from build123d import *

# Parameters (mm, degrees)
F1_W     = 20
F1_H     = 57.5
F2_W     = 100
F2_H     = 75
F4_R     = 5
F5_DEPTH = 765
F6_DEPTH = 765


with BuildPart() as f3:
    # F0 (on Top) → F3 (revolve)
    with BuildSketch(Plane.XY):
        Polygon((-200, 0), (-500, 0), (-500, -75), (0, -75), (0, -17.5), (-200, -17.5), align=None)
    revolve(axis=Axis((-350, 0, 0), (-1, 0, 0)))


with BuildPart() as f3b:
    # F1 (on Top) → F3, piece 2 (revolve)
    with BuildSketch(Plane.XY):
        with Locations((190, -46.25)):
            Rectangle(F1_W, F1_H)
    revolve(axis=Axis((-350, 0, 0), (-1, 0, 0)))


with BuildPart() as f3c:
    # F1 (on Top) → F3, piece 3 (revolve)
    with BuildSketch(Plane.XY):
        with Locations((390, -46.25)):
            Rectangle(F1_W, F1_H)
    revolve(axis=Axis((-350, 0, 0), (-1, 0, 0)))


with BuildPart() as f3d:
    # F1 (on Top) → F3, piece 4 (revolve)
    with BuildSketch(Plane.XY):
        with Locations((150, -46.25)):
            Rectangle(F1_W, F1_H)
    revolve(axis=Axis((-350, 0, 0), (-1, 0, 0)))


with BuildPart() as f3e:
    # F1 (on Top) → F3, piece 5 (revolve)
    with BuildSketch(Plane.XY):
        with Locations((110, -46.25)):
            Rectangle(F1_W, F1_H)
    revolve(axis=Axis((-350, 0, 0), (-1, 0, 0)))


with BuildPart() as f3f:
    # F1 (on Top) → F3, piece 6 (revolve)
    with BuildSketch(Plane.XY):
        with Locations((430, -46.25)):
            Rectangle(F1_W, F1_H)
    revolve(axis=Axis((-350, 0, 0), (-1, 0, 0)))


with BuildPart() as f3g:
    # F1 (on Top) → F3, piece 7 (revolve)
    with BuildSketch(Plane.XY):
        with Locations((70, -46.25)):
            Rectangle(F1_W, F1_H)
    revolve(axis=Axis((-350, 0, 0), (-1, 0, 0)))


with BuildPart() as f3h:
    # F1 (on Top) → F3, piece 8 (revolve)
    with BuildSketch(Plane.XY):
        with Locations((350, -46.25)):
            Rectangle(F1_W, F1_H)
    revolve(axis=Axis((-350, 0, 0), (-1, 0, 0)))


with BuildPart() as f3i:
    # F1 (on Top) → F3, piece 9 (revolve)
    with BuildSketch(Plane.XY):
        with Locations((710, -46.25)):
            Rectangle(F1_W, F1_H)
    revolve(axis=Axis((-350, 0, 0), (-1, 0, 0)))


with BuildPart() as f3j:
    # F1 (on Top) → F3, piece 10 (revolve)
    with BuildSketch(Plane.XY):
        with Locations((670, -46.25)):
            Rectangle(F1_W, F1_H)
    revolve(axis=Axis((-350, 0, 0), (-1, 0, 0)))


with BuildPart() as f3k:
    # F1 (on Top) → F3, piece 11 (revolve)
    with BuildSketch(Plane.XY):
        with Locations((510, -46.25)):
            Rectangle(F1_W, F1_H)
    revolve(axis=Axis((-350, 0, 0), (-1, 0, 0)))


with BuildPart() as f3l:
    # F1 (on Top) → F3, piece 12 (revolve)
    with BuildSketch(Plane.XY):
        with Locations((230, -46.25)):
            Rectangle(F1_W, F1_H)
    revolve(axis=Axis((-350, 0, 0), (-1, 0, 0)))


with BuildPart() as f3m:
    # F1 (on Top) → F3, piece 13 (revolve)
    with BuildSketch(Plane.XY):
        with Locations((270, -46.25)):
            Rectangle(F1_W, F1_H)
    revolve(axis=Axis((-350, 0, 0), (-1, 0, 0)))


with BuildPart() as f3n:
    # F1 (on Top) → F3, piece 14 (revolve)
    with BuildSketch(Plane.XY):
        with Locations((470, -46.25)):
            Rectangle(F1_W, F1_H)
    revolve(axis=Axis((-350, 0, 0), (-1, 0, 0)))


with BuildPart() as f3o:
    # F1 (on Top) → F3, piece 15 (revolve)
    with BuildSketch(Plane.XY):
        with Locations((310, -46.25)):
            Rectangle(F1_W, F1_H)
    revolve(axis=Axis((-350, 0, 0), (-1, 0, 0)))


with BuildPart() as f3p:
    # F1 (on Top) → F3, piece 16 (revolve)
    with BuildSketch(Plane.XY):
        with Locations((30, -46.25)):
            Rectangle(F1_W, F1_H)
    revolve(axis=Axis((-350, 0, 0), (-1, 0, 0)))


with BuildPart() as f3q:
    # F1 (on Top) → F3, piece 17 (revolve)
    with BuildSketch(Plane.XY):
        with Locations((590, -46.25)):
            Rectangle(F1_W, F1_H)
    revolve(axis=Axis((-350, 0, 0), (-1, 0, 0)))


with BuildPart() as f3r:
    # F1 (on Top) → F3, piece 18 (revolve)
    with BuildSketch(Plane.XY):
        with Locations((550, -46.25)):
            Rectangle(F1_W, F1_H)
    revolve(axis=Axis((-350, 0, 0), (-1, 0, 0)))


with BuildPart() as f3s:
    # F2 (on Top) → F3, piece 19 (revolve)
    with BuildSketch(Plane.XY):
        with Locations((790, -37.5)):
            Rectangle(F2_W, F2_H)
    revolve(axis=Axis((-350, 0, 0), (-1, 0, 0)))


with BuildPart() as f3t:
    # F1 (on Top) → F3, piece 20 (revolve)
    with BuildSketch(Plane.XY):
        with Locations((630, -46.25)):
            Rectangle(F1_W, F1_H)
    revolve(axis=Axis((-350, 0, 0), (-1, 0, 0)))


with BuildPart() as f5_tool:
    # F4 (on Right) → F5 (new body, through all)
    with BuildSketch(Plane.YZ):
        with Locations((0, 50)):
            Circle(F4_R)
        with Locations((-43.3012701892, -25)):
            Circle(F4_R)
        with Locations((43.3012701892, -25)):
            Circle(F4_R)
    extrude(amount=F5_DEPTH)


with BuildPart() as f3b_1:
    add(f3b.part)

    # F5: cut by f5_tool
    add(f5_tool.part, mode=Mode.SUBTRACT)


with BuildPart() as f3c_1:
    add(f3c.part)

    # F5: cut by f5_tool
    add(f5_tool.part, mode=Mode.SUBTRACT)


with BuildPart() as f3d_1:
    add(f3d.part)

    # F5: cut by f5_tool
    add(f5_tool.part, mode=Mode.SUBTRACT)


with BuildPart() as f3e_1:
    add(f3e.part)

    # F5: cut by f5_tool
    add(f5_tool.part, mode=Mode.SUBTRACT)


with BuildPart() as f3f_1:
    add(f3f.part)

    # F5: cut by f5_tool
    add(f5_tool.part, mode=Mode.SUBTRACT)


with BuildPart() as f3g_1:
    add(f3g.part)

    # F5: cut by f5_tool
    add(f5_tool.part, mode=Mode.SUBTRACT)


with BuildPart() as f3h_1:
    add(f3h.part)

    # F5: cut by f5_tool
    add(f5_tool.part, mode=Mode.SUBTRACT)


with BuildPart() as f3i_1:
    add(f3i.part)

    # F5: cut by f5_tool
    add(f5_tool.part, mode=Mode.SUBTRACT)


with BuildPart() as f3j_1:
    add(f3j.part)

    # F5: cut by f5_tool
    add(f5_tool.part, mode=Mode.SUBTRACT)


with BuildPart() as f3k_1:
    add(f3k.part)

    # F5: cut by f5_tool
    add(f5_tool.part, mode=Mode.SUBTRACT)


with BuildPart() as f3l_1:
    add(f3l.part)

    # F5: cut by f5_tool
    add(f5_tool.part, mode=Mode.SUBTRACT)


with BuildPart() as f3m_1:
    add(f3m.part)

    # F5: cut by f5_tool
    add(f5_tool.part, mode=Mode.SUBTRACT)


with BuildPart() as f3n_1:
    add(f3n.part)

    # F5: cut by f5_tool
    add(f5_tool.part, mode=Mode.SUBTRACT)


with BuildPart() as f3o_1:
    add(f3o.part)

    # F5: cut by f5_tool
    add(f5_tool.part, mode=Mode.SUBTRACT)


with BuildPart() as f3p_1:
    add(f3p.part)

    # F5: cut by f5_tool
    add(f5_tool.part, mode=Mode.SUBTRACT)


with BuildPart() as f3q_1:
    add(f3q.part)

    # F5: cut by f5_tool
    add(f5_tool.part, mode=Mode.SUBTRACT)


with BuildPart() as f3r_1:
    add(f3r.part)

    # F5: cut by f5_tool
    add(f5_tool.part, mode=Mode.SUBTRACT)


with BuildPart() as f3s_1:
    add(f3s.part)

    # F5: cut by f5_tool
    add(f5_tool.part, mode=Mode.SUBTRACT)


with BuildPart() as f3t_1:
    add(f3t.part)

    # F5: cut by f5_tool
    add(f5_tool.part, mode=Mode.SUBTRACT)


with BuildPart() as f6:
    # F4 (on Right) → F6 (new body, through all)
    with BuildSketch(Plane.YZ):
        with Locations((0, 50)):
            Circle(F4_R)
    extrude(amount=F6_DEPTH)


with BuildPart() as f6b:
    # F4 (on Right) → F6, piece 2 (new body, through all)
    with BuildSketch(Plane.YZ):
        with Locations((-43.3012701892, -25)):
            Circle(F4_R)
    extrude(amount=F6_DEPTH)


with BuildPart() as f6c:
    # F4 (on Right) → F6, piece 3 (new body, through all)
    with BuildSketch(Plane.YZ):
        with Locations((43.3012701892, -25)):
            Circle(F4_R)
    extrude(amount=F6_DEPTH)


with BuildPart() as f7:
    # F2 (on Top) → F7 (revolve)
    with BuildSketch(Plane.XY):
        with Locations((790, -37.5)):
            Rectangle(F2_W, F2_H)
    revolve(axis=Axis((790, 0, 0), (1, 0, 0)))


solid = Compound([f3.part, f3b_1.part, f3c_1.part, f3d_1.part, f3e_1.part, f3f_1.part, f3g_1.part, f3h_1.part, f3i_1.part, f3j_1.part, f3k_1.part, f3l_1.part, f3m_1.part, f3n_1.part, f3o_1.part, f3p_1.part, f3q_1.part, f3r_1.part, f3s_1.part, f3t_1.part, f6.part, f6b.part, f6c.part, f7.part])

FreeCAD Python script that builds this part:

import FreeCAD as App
import Part
import Sketcher
from FreeCAD import Vector

doc = App.newDocument("Part")
params = doc.addObject("Spreadsheet::Sheet", "Params")
for row, (alias, value) in enumerate([
    ("sketch1_width", "300 mm"),
    ("sketch1_width2", "500 mm"),
    ("sketch1_height", "75 mm"),
    ("sketch1_height2", "57.5 mm"),
    ("revolution_angle", "360 deg"),
    ("sketch2_width", "20 mm"),
    ("sketch2_height", "57.5 mm"),
    ("revolution2_angle", "360 deg"),
    ("sketch3_width", "20 mm"),
    ("sketch3_height", "57.5 mm"),
    ("revolution3_angle", "360 deg"),
    ("sketch4_width", "20 mm"),
    ("sketch4_height", "57.5 mm"),
    ("revolution4_angle", "360 deg"),
    ("sketch5_width", "20 mm"),
    ("sketch5_height", "57.5 mm"),
    ("revolution5_angle", "360 deg"),
    ("sketch6_width", "20 mm"),
    ("sketch6_height", "57.5 mm"),
    ("revolution6_angle", "360 deg"),
    ("sketch7_width", "20 mm"),
    ("sketch7_height", "57.5 mm"),
    ("revolution7_angle", "360 deg"),
    ("sketch8_width", "20 mm"),
    ("sketch8_height", "57.5 mm"),
    ("revolution8_angle", "360 deg"),
    ("sketch9_width", "20 mm"),
    ("sketch9_height", "57.5 mm"),
    ("revolution9_angle", "360 deg"),
    ("sketch10_width", "20 mm"),
    ("sketch10_height", "57.5 mm"),
    ("revolution10_angle", "360 deg"),
    ("sketch11_width", "20 mm"),
    ("sketch11_height", "57.5 mm"),
    ("revolution11_angle", "360 deg"),
    ("sketch12_width", "20 mm"),
    ("sketch12_height", "57.5 mm"),
    ("revolution12_angle", "360 deg"),
    ("sketch13_width", "20 mm"),
    ("sketch13_height", "57.5 mm"),
    ("revolution13_angle", "360 deg"),
    ("sketch14_width", "20 mm"),
    ("sketch14_height", "57.5 mm"),
    ("revolution14_angle", "360 deg"),
    ("sketch15_width", "20 mm"),
    ("sketch15_height", "57.5 mm"),
    ("revolution15_angle", "360 deg"),
    ("sketch16_width", "20 mm"),
    ("sketch16_height", "57.5 mm"),
    ("revolution16_angle", "360 deg"),
    ("sketch17_width", "20 mm"),
    ("sketch17_height", "57.5 mm"),
    ("revolution17_angle", "360 deg"),
    ("sketch18_width", "20 mm"),
    ("sketch18_height", "57.5 mm"),
    ("revolution18_angle", "360 deg"),
    ("sketch19_width", "100 mm"),
    ("sketch19_height", "75 mm"),
    ("revolution19_angle", "360 deg"),
    ("sketch20_width", "20 mm"),
    ("sketch20_height", "57.5 mm"),
    ("revolution20_angle", "360 deg"),
    ("sketch21_diameter", "10 mm"),
    ("pad1_length", "765 mm"),
    ("sketch22_diameter", "10 mm"),
    ("pad2_length", "765 mm"),
    ("sketch23_diameter", "10 mm"),
    ("pad3_length", "765 mm"),
    ("sketch24_diameter", "10 mm"),
    ("pad4_length", "765 mm"),
    ("sketch25_width", "100 mm"),
    ("sketch25_height", "75 mm"),
    ("revolution21_angle", "360 deg"),
], start=1):
    params.set(f"A{row}", alias)
    params.set(f"B{row}", "=" + value)
    params.setAlias(f"B{row}", alias)

body = doc.addObject("PartDesign::Body", "Body")

sketch1 = body.newObject("Sketcher::SketchObject", "Sketch")
sketch1.AttachmentSupport = (doc.getObject("XY_Plane"), [""])
sketch1.MapMode = "FlatFace"
sketch1.addGeometry([
    Part.LineSegment(Vector(-200, 0, 0), Vector(-500, 0, 0)),
    Part.LineSegment(Vector(-500, 0, 0), Vector(-500, -75, 0)),
    Part.LineSegment(Vector(-500, -75, 0), Vector(0, -75, 0)),
    Part.LineSegment(Vector(0, -75, 0), Vector(0, -17.5, 0)),
    Part.LineSegment(Vector(0, -17.5, 0), Vector(-200, -17.5, 0)),
    Part.LineSegment(Vector(-200, -17.5, 0), Vector(-200, 0, 0)),
], False)
sketch1.addConstraint([
    Sketcher.Constraint("Coincident", 0, 2, 1, 1),
    Sketcher.Constraint("Coincident", 1, 2, 2, 1),
    Sketcher.Constraint("Coincident", 2, 2, 3, 1),
    Sketcher.Constraint("Coincident", 3, 2, 4, 1),
    Sketcher.Constraint("Coincident", 4, 2, 5, 1),
    Sketcher.Constraint("Coincident", 5, 2, 0, 1),
    Sketcher.Constraint("Horizontal", 0),
    Sketcher.Constraint("Vertical", 1),
    Sketcher.Constraint("Horizontal", 2),
    Sketcher.Constraint("Vertical", 3),
    Sketcher.Constraint("Horizontal", 4),
    Sketcher.Constraint("Vertical", 5),
    Sketcher.Constraint("PointOnObject", 0, 2, -1),
    Sketcher.Constraint("PointOnObject", 2, 2, -2),
    Sketcher.Constraint("DistanceX", 0, 2, 0, 1, 300.0),
    Sketcher.Constraint("DistanceX", 2, 1, 2, 2, 500.0),
    Sketcher.Constraint("DistanceY", 1, 2, 1, 1, 75.0),
    Sketcher.Constraint("DistanceY", 3, 1, 3, 2, 57.5),
])
sketch1.setExpression("Constraints[14]", "Params.sketch1_width")
sketch1.setExpression("Constraints[15]", "Params.sketch1_width2")
sketch1.setExpression("Constraints[16]", "Params.sketch1_height")
sketch1.setExpression("Constraints[17]", "Params.sketch1_height2")
revolution = body.newObject("PartDesign::Revolution", "Revolution")
revolution.Profile = sketch1
revolution.ReferenceAxis = (sketch1, ["H_Axis"])
revolution.setExpression("Angle", "Params.revolution_angle")
body2 = doc.addObject("PartDesign::Body", "Body001")

sketch2 = body2.newObject("Sketcher::SketchObject", "Sketch001")
sketch2.AttachmentSupport = (doc.getObject("XY_Plane001"), [""])
sketch2.MapMode = "FlatFace"
sketch2.addGeometry([
    Part.LineSegment(Vector(180, -17.5, 0), Vector(180, -75, 0)),
    Part.LineSegment(Vector(180, -75, 0), Vector(200, -75, 0)),
    Part.LineSegment(Vector(200, -75, 0), Vector(200, -17.5, 0)),
    Part.LineSegment(Vector(200, -17.5, 0), Vector(180, -17.5, 0)),
], False)
sketch2.addConstraint([
    Sketcher.Constraint("Coincident", 0, 2, 1, 1),
    Sketcher.Constraint("Coincident", 1, 2, 2, 1),
    Sketcher.Constraint("Coincident", 2, 2, 3, 1),
    Sketcher.Constraint("Coincident", 3, 2, 0, 1),
    Sketcher.Constraint("Vertical", 0),
    Sketcher.Constraint("Horizontal", 1),
    Sketcher.Constraint("Vertical", 2),
    Sketcher.Constraint("Horizontal", 3),
    Sketcher.Constraint("DistanceX", 1, 1, 1, 2, 20.0),
    Sketcher.Constraint("DistanceY", 0, 2, 0, 1, 57.5),
    Sketcher.Constraint("DistanceX", -1, 1, 0, 2, 180.0),
    Sketcher.Constraint("DistanceY", 0, 2, -1, 1, 75.0),
])
sketch2.setExpression("Constraints[8]", "Params.sketch2_width")
sketch2.setExpression("Constraints[9]", "Params.sketch2_height")
revolution2 = body2.newObject("PartDesign::Revolution", "Revolution001")
revolution2.Profile = sketch2
revolution2.ReferenceAxis = (sketch2, ["H_Axis"])
revolution2.setExpression("Angle", "Params.revolution2_angle")
body3 = doc.addObject("PartDesign::Body", "Body002")

sketch3 = body3.newObject("Sketcher::SketchObject", "Sketch002")
sketch3.AttachmentSupport = (doc.getObject("XY_Plane002"), [""])
sketch3.MapMode = "FlatFace"
sketch3.addGeometry([
    Part.LineSegment(Vector(380, -17.5, 0), Vector(380, -75, 0)),
    Part.LineSegment(Vector(380, -75, 0), Vector(400, -75, 0)),
    Part.LineSegment(Vector(400, -75, 0), Vector(400, -17.5, 0)),
    Part.LineSegment(Vector(400, -17.5, 0), Vector(380, -17.5, 0)),
], False)
sketch3.addConstraint([
    Sketcher.Constraint("Coincident", 0, 2, 1, 1),
    Sketcher.Constraint("Coincident", 1, 2, 2, 1),
    Sketcher.Constraint("Coincident", 2, 2, 3, 1),
    Sketcher.Constraint("Coincident", 3, 2, 0, 1),
    Sketcher.Constraint("Vertical", 0),
    Sketcher.Constraint("Horizontal", 1),
    Sketcher.Constraint("Vertical", 2),
    Sketcher.Constraint("Horizontal", 3),
    Sketcher.Constraint("DistanceX", 1, 1, 1, 2, 20.0),
    Sketcher.Constraint("DistanceY", 0, 2, 0, 1, 57.5),
    Sketcher.Constraint("DistanceX", -1, 1, 0, 2, 380.0),
    Sketcher.Constraint("DistanceY", 0, 2, -1, 1, 75.0),
])
sketch3.setExpression("Constraints[8]", "Params.sketch3_width")
sketch3.setExpression("Constraints[9]", "Params.sketch3_height")
revolution3 = body3.newObject("PartDesign::Revolution", "Revolution002")
revolution3.Profile = sketch3
revolution3.ReferenceAxis = (sketch3, ["H_Axis"])
revolution3.setExpression("Angle", "Params.revolution3_angle")
body4 = doc.addObject("PartDesign::Body", "Body003")

sketch4 = body4.newObject("Sketcher::SketchObject", "Sketch003")
sketch4.AttachmentSupport = (doc.getObject("XY_Plane003"), [""])
sketch4.MapMode = "FlatFace"
sketch4.addGeometry([
    Part.LineSegment(Vector(140, -17.5, 0), Vector(140, -75, 0)),
    Part.LineSegment(Vector(140, -75, 0), Vector(160, -75, 0)),
    Part.LineSegment(Vector(160, -75, 0), Vector(160, -17.5, 0)),
    Part.LineSegment(Vector(160, -17.5, 0), Vector(140, -17.5, 0)),
], False)
sketch4.addConstraint([
    Sketcher.Constraint("Coincident", 0, 2, 1, 1),
    Sketcher.Constraint("Coincident", 1, 2, 2, 1),
    Sketcher.Constraint("Coincident", 2, 2, 3, 1),
    Sketcher.Constraint("Coincident", 3, 2, 0, 1),
    Sketcher.Constraint("Vertical", 0),
    Sketcher.Constraint("Horizontal", 1),
    Sketcher.Constraint("Vertical", 2),
    Sketcher.Constraint("Horizontal", 3),
    Sketcher.Constraint("DistanceX", 1, 1, 1, 2, 20.0),
    Sketcher.Constraint("DistanceY", 0, 2, 0, 1, 57.5),
    Sketcher.Constraint("DistanceX", -1, 1, 0, 2, 140.0),
    Sketcher.Constraint("DistanceY", 0, 2, -1, 1, 75.0),
])
sketch4.setExpression("Constraints[8]", "Params.sketch4_width")
sketch4.setExpression("Constraints[9]", "Params.sketch4_height")
revolution4 = body4.newObject("PartDesign::Revolution", "Revolution003")
revolution4.Profile = sketch4
revolution4.ReferenceAxis = (sketch4, ["H_Axis"])
revolution4.setExpression("Angle", "Params.revolution4_angle")
body5 = doc.addObject("PartDesign::Body", "Body004")

sketch5 = body5.newObject("Sketcher::SketchObject", "Sketch004")
sketch5.AttachmentSupport = (doc.getObject("XY_Plane004"), [""])
sketch5.MapMode = "FlatFace"
sketch5.addGeometry([
    Part.LineSegment(Vector(100, -17.5, 0), Vector(100, -75, 0)),
    Part.LineSegment(Vector(100, -75, 0), Vector(120, -75, 0)),
    Part.LineSegment(Vector(120, -75, 0), Vector(120, -17.5, 0)),
    Part.LineSegment(Vector(120, -17.5, 0), Vector(100, -17.5, 0)),
], False)
sketch5.addConstraint([
    Sketcher.Constraint("Coincident", 0, 2, 1, 1),
    Sketcher.Constraint("Coincident", 1, 2, 2, 1),
    Sketcher.Constraint("Coincident", 2, 2, 3, 1),
    Sketcher.Constraint("Coincident", 3, 2, 0, 1),
    Sketcher.Constraint("Vertical", 0),
    Sketcher.Constraint("Horizontal", 1),
    Sketcher.Constraint("Vertical", 2),
    Sketcher.Constraint("Horizontal", 3),
    Sketcher.Constraint("DistanceX", 1, 1, 1, 2, 20.0),
    Sketcher.Constraint("DistanceY", 0, 2, 0, 1, 57.5),
    Sketcher.Constraint("DistanceX", -1, 1, 0, 2, 100.0),
    Sketcher.Constraint("DistanceY", 0, 2, -1, 1, 75.0),
])
sketch5.setExpression("Constraints[8]", "Params.sketch5_width")
sketch5.setExpression("Constraints[9]", "Params.sketch5_height")
revolution5 = body5.newObject("PartDesign::Revolution", "Revolution004")
revolution5.Profile = sketch5
revolution5.ReferenceAxis = (sketch5, ["H_Axis"])
revolution5.setExpression("Angle", "Params.revolution5_angle")
body6 = doc.addObject("PartDesign::Body", "Body005")

sketch6 = body6.newObject("Sketcher::SketchObject", "Sketch005")
sketch6.AttachmentSupport = (doc.getObject("XY_Plane005"), [""])
sketch6.MapMode = "FlatFace"
sketch6.addGeometry([
    Part.LineSegment(Vector(420, -17.5, 0), Vector(420, -75, 0)),
    Part.LineSegment(Vector(420, -75, 0), Vector(440, -75, 0)),
    Part.LineSegment(Vector(440, -75, 0), Vector(440, -17.5, 0)),
    Part.LineSegment(Vector(440, -17.5, 0), Vector(420, -17.5, 0)),
], False)
sketch6.addConstraint([
    Sketcher.Constraint("Coincident", 0, 2, 1, 1),
    Sketcher.Constraint("Coincident", 1, 2, 2, 1),
    Sketcher.Constraint("Coincident", 2, 2, 3, 1),
    Sketcher.Constraint("Coincident", 3, 2, 0, 1),
    Sketcher.Constraint("Vertical", 0),
    Sketcher.Constraint("Horizontal", 1),
    Sketcher.Constraint("Vertical", 2),
    Sketcher.Constraint("Horizontal", 3),
    Sketcher.Constraint("DistanceX", 1, 1, 1, 2, 20.0),
    Sketcher.Constraint("DistanceY", 0, 2, 0, 1, 57.5),
    Sketcher.Constraint("DistanceX", -1, 1, 0, 2, 420.0),
    Sketcher.Constraint("DistanceY", 0, 2, -1, 1, 75.0),
])
sketch6.setExpression("Constraints[8]", "Params.sketch6_width")
sketch6.setExpression("Constraints[9]", "Params.sketch6_height")
revolution6 = body6.newObject("PartDesign::Revolution", "Revolution005")
revolution6.Profile = sketch6
revolution6.ReferenceAxis = (sketch6, ["H_Axis"])
revolution6.setExpression("Angle", "Params.revolution6_angle")
body7 = doc.addObject("PartDesign::Body", "Body006")

sketch7 = body7.newObject("Sketcher::SketchObject", "Sketch006")
sketch7.AttachmentSupport = (doc.getObject("XY_Plane006"), [""])
sketch7.MapMode = "FlatFace"
sketch7.addGeometry([
    Part.LineSegment(Vector(60, -17.5, 0), Vector(60, -75, 0)),
    Part.LineSegment(Vector(60, -75, 0), Vector(80, -75, 0)),
    Part.LineSegment(Vector(80, -75, 0), Vector(80, -17.5, 0)),
    Part.LineSegment(Vector(80, -17.5, 0), Vector(60, -17.5, 0)),
], False)
sketch7.addConstraint([
    Sketcher.Constraint("Coincident", 0, 2, 1, 1),
    Sketcher.Constraint("Coincident", 1, 2, 2, 1),
    Sketcher.Constraint("Coincident", 2, 2, 3, 1),
    Sketcher.Constraint("Coincident", 3, 2, 0, 1),
    Sketcher.Constraint("Vertical", 0),
    Sketcher.Constraint("Horizontal", 1),
    Sketcher.Constraint("Vertical", 2),
    Sketcher.Constraint("Horizontal", 3),
    Sketcher.Constraint("DistanceX", 1, 1, 1, 2, 20.0),
    Sketcher.Constraint("DistanceY", 0, 2, 0, 1, 57.5),
    Sketcher.Constraint("DistanceX", -1, 1, 0, 2, 60.0),
    Sketcher.Constraint("DistanceY", 0, 2, -1, 1, 75.0),
])
sketch7.setExpression("Constraints[8]", "Params.sketch7_width")
sketch7.setExpression("Constraints[9]", "Params.sketch7_height")
revolution7 = body7.newObject("PartDesign::Revolution", "Revolution006")
revolution7.Profile = sketch7
revolution7.ReferenceAxis = (sketch7, ["H_Axis"])
revolution7.setExpression("Angle", "Params.revolution7_angle")
body8 = doc.addObject("PartDesign::Body", "Body007")

sketch8 = body8.newObject("Sketcher::SketchObject", "Sketch007")
sketch8.AttachmentSupport = (doc.getObject("XY_Plane007"), [""])
sketch8.MapMode = "FlatFace"
sketch8.addGeometry([
    Part.LineSegment(Vector(340, -17.5, 0), Vector(340, -75, 0)),
    Part.LineSegment(Vector(340, -75, 0), Vector(360, -75, 0)),
    Part.LineSegment(Vector(360, -75, 0), Vector(360, -17.5, 0)),
    Part.LineSegment(Vector(360, -17.5, 0), Vector(340, -17.5, 0)),
], False)
sketch8.addConstraint([
    Sketcher.Constraint("Coincident", 0, 2, 1, 1),
    Sketcher.Constraint("Coincident", 1, 2, 2, 1),
    Sketcher.Constraint("Coincident", 2, 2, 3, 1),
    Sketcher.Constraint("Coincident", 3, 2, 0, 1),
    Sketcher.Constraint("Vertical", 0),
    Sketcher.Constraint("Horizontal", 1),
    Sketcher.Constraint("Vertical", 2),
    Sketcher.Constraint("Horizontal", 3),
    Sketcher.Constraint("DistanceX", 1, 1, 1, 2, 20.0),
    Sketcher.Constraint("DistanceY", 0, 2, 0, 1, 57.5),
    Sketcher.Constraint("DistanceX", -1, 1, 0, 2, 340.0),
    Sketcher.Constraint("DistanceY", 0, 2, -1, 1, 75.0),
])
sketch8.setExpression("Constraints[8]", "Params.sketch8_width")
sketch8.setExpression("Constraints[9]", "Params.sketch8_height")
revolution8 = body8.newObject("PartDesign::Revolution", "Revolution007")
revolution8.Profile = sketch8
revolution8.ReferenceAxis = (sketch8, ["H_Axis"])
revolution8.setExpression("Angle", "Params.revolution8_angle")
body9 = doc.addObject("PartDesign::Body", "Body008")

sketch9 = body9.newObject("Sketcher::SketchObject", "Sketch008")
sketch9.AttachmentSupport = (doc.getObject("XY_Plane008"), [""])
sketch9.MapMode = "FlatFace"
sketch9.addGeometry([
    Part.LineSegment(Vector(700, -17.5, 0), Vector(700, -75, 0)),
    Part.LineSegment(Vector(700, -75, 0), Vector(720, -75, 0)),
    Part.LineSegment(Vector(720, -75, 0), Vector(720, -17.5, 0)),
    Part.LineSegment(Vector(720, -17.5, 0), Vector(700, -17.5, 0)),
], False)
sketch9.addConstraint([
    Sketcher.Constraint("Coincident", 0, 2, 1, 1),
    Sketcher.Constraint("Coincident", 1, 2, 2, 1),
    Sketcher.Constraint("Coincident", 2, 2, 3, 1),
    Sketcher.Constraint("Coincident", 3, 2, 0, 1),
    Sketcher.Constraint("Vertical", 0),
    Sketcher.Constraint("Horizontal", 1),
    Sketcher.Constraint("Vertical", 2),
    Sketcher.Constraint("Horizontal", 3),
    Sketcher.Constraint("DistanceX", 1, 1, 1, 2, 20.0),
    Sketcher.Constraint("DistanceY", 0, 2, 0, 1, 57.5),
    Sketcher.Constraint("DistanceX", -1, 1, 0, 2, 700.0),
    Sketcher.Constraint("DistanceY", 0, 2, -1, 1, 75.0),
])
sketch9.setExpression("Constraints[8]", "Params.sketch9_width")
sketch9.setExpression("Constraints[9]", "Params.sketch9_height")
revolution9 = body9.newObject("PartDesign::Revolution", "Revolution008")
revolution9.Profile = sketch9
revolution9.ReferenceAxis = (sketch9, ["H_Axis"])
revolution9.setExpression("Angle", "Params.revolution9_angle")
body10 = doc.addObject("PartDesign::Body", "Body009")

sketch10 = body10.newObject("Sketcher::SketchObject", "Sketch009")
sketch10.AttachmentSupport = (doc.getObject("XY_Plane009"), [""])
sketch10.MapMode = "FlatFace"
sketch10.addGeometry([
    Part.LineSegment(Vector(660, -17.5, 0), Vector(660, -75, 0)),
    Part.LineSegment(Vector(660, -75, 0), Vector(680, -75, 0)),
    Part.LineSegment(Vector(680, -75, 0), Vector(680, -17.5, 0)),
    Part.LineSegment(Vector(680, -17.5, 0), Vector(660, -17.5, 0)),
], False)
sketch10.addConstraint([
    Sketcher.Constraint("Coincident", 0, 2, 1, 1),
    Sketcher.Constraint("Coincident", 1, 2, 2, 1),
    Sketcher.Constraint("Coincident", 2, 2, 3, 1),
    Sketcher.Constraint("Coincident", 3, 2, 0, 1),
    Sketcher.Constraint("Vertical", 0),
    Sketcher.Constraint("Horizontal", 1),
    Sketcher.Constraint("Vertical", 2),
    Sketcher.Constraint("Horizontal", 3),
    Sketcher.Constraint("DistanceX", 1, 1, 1, 2, 20.0),
    Sketcher.Constraint("DistanceY", 0, 2, 0, 1, 57.5),
    Sketcher.Constraint("DistanceX", -1, 1, 0, 2, 660.0),
    Sketcher.Constraint("DistanceY", 0, 2, -1, 1, 75.0),
])
sketch10.setExpression("Constraints[8]", "Params.sketch10_width")
sketch10.setExpression("Constraints[9]", "Params.sketch10_height")
revolution10 = body10.newObject("PartDesign::Revolution", "Revolution009")
revolution10.Profile = sketch10
revolution10.ReferenceAxis = (sketch10, ["H_Axis"])
revolution10.setExpression("Angle", "Params.revolution10_angle")
body11 = doc.addObject("PartDesign::Body", "Body010")

sketch11 = body11.newObject("Sketcher::SketchObject", "Sketch010")
sketch11.AttachmentSupport = (doc.getObject("XY_Plane010"), [""])
sketch11.MapMode = "FlatFace"
sketch11.addGeometry([
    Part.LineSegment(Vector(500, -17.5, 0), Vector(500, -75, 0)),
    Part.LineSegment(Vector(500, -75, 0), Vector(520, -75, 0)),
    Part.LineSegment(Vector(520, -75, 0), Vector(520, -17.5, 0)),
    Part.LineSegment(Vector(520, -17.5, 0), Vector(500, -17.5, 0)),
], False)
sketch11.addConstraint([
    Sketcher.Constraint("Coincident", 0, 2, 1, 1),
    Sketcher.Constraint("Coincident", 1, 2, 2, 1),
    Sketcher.Constraint("Coincident", 2, 2, 3, 1),
    Sketcher.Constraint("Coincident", 3, 2, 0, 1),
    Sketcher.Constraint("Vertical", 0),
    Sketcher.Constraint("Horizontal", 1),
    Sketcher.Constraint("Vertical", 2),
    Sketcher.Constraint("Horizontal", 3),
    Sketcher.Constraint("DistanceX", 1, 1, 1, 2, 20.0),
    Sketcher.Constraint("DistanceY", 0, 2, 0, 1, 57.5),
    Sketcher.Constraint("DistanceX", -1, 1, 0, 2, 500.0),
    Sketcher.Constraint("DistanceY", 0, 2, -1, 1, 75.0),
])
sketch11.setExpression("Constraints[8]", "Params.sketch11_width")
sketch11.setExpression("Constraints[9]", "Params.sketch11_height")
revolution11 = body11.newObject("PartDesign::Revolution", "Revolution010")
revolution11.Profile = sketch11
revolution11.ReferenceAxis = (sketch11, ["H_Axis"])
revolution11.setExpression("Angle", "Params.revolution11_angle")
body12 = doc.addObject("PartDesign::Body", "Body011")

sketch12 = body12.newObject("Sketcher::SketchObject", "Sketch011")
sketch12.AttachmentSupport = (doc.getObject("XY_Plane011"), [""])
sketch12.MapMode = "FlatFace"
sketch12.addGeometry([
    Part.LineSegment(Vector(220, -17.5, 0), Vector(220, -75, 0)),
    Part.LineSegment(Vector(220, -75, 0), Vector(240, -75, 0)),
    Part.LineSegment(Vector(240, -75, 0), Vector(240, -17.5, 0)),
    Part.LineSegment(Vector(240, -17.5, 0), Vector(220, -17.5, 0)),
], False)
sketch12.addConstraint([
    Sketcher.Constraint("Coincident", 0, 2, 1, 1),
    Sketcher.Constraint("Coincident", 1, 2, 2, 1),
    Sketcher.Constraint("Coincident", 2, 2, 3, 1),
    Sketcher.Constraint("Coincident", 3, 2, 0, 1),
    Sketcher.Constraint("Vertical", 0),
    Sketcher.Constraint("Horizontal", 1),
    Sketcher.Constraint("Vertical", 2),
    Sketcher.Constraint("Horizontal", 3),
    Sketcher.Constraint("DistanceX", 1, 1, 1, 2, 20.0),
    Sketcher.Constraint("DistanceY", 0, 2, 0, 1, 57.5),
    Sketcher.Constraint("DistanceX", -1, 1, 0, 2, 220.0),
    Sketcher.Constraint("DistanceY", 0, 2, -1, 1, 75.0),
])
sketch12.setExpression("Constraints[8]", "Params.sketch12_width")
sketch12.setExpression("Constraints[9]", "Params.sketch12_height")
revolution12 = body12.newObject("PartDesign::Revolution", "Revolution011")
revolution12.Profile = sketch12
revolution12.ReferenceAxis = (sketch12, ["H_Axis"])
revolution12.setExpression("Angle", "Params.revolution12_angle")
body13 = doc.addObject("PartDesign::Body", "Body012")

sketch13 = body13.newObject("Sketcher::SketchObject", "Sketch012")
sketch13.AttachmentSupport = (doc.getObject("XY_Plane012"), [""])
sketch13.MapMode = "FlatFace"
sketch13.addGeometry([
    Part.LineSegment(Vector(260, -17.5, 0), Vector(260, -75, 0)),
    Part.LineSegment(Vector(260, -75, 0), Vector(280, -75, 0)),
    Part.LineSegment(Vector(280, -75, 0), Vector(280, -17.5, 0)),
    Part.LineSegment(Vector(280, -17.5, 0), Vector(260, -17.5, 0)),
], False)
sketch13.addConstraint([
    Sketcher.Constraint("Coincident", 0, 2, 1, 1),
    Sketcher.Constraint("Coincident", 1, 2, 2, 1),
    Sketcher.Constraint("Coincident", 2, 2, 3, 1),
    Sketcher.Constraint("Coincident", 3, 2, 0, 1),
    Sketcher.Constraint("Vertical", 0),
    Sketcher.Constraint("Horizontal", 1),
    Sketcher.Constraint("Vertical", 2),
    Sketcher.Constraint("Horizontal", 3),
    Sketcher.Constraint("DistanceX", 1, 1, 1, 2, 20.0),
    Sketcher.Constraint("DistanceY", 0, 2, 0, 1, 57.5),
    Sketcher.Constraint("DistanceX", -1, 1, 0, 2, 260.0),
    Sketcher.Constraint("DistanceY", 0, 2, -1, 1, 75.0),
])
sketch13.setExpression("Constraints[8]", "Params.sketch13_width")
sketch13.setExpression("Constraints[9]", "Params.sketch13_height")
revolution13 = body13.newObject("PartDesign::Revolution", "Revolution012")
revolution13.Profile = sketch13
revolution13.ReferenceAxis = (sketch13, ["H_Axis"])
revolution13.setExpression("Angle", "Params.revolution13_angle")
body14 = doc.addObject("PartDesign::Body", "Body013")

sketch14 = body14.newObject("Sketcher::SketchObject", "Sketch013")
sketch14.AttachmentSupport = (doc.getObject("XY_Plane013"), [""])
sketch14.MapMode = "FlatFace"
sketch14.addGeometry([
    Part.LineSegment(Vector(460, -17.5, 0), Vector(460, -75, 0)),
    Part.LineSegment(Vector(460, -75, 0), Vector(480, -75, 0)),
    Part.LineSegment(Vector(480, -75, 0), Vector(480, -17.5, 0)),
    Part.LineSegment(Vector(480, -17.5, 0), Vector(460, -17.5, 0)),
], False)
sketch14.addConstraint([
    Sketcher.Constraint("Coincident", 0, 2, 1, 1),
    Sketcher.Constraint("Coincident", 1, 2, 2, 1),
    Sketcher.Constraint("Coincident", 2, 2, 3, 1),
    Sketcher.Constraint("Coincident", 3, 2, 0, 1),
    Sketcher.Constraint("Vertical", 0),
    Sketcher.Constraint("Horizontal", 1),
    Sketcher.Constraint("Vertical", 2),
    Sketcher.Constraint("Horizontal", 3),
    Sketcher.Constraint("DistanceX", 1, 1, 1, 2, 20.0),
    Sketcher.Constraint("DistanceY", 0, 2, 0, 1, 57.5),
    Sketcher.Constraint("DistanceX", -1, 1, 0, 2, 460.0),
    Sketcher.Constraint("DistanceY", 0, 2, -1, 1, 75.0),
])
sketch14.setExpression("Constraints[8]", "Params.sketch14_width")
sketch14.setExpression("Constraints[9]", "Params.sketch14_height")
revolution14 = body14.newObject("PartDesign::Revolution", "Revolution013")
revolution14.Profile = sketch14
revolution14.ReferenceAxis = (sketch14, ["H_Axis"])
revolution14.setExpression("Angle", "Params.revolution14_angle")
body15 = doc.addObject("PartDesign::Body", "Body014")

sketch15 = body15.newObject("Sketcher::SketchObject", "Sketch014")
sketch15.AttachmentSupport = (doc.getObject("XY_Plane014"), [""])
sketch15.MapMode = "FlatFace"
sketch15.addGeometry([
    Part.LineSegment(Vector(300, -17.5, 0), Vector(300, -75, 0)),
    Part.LineSegment(Vector(300, -75, 0), Vector(320, -75, 0)),
    Part.LineSegment(Vector(320, -75, 0), Vector(320, -17.5, 0)),
    Part.LineSegment(Vector(320, -17.5, 0), Vector(300, -17.5, 0)),
], False)
sketch15.addConstraint([
    Sketcher.Constraint("Coincident", 0, 2, 1, 1),
    Sketcher.Constraint("Coincident", 1, 2, 2, 1),
    Sketcher.Constraint("Coincident", 2, 2, 3, 1),
    Sketcher.Constraint("Coincident", 3, 2, 0, 1),
    Sketcher.Constraint("Vertical", 0),
    Sketcher.Constraint("Horizontal", 1),
    Sketcher.Constraint("Vertical", 2),
    Sketcher.Constraint("Horizontal", 3),
    Sketcher.Constraint("DistanceX", 1, 1, 1, 2, 20.0),
    Sketcher.Constraint("DistanceY", 0, 2, 0, 1, 57.5),
    Sketcher.Constraint("DistanceX", -1, 1, 0, 2, 300.0),
    Sketcher.Constraint("DistanceY", 0, 2, -1, 1, 75.0),
])
sketch15.setExpression("Constraints[8]", "Params.sketch15_width")
sketch15.setExpression("Constraints[9]", "Params.sketch15_height")
revolution15 = body15.newObject("PartDesign::Revolution", "Revolution014")
revolution15.Profile = sketch15
revolution15.ReferenceAxis = (sketch15, ["H_Axis"])
revolution15.setExpression("Angle", "Params.revolution15_angle")
body16 = doc.addObject("PartDesign::Body", "Body015")

sketch16 = body16.newObject("Sketcher::SketchObject", "Sketch015")
sketch16.AttachmentSupport = (doc.getObject("XY_Plane015"), [""])
sketch16.MapMode = "FlatFace"
sketch16.addGeometry([
    Part.LineSegment(Vector(20, -17.5, 0), Vector(20, -75, 0)),
    Part.LineSegment(Vector(20, -75, 0), Vector(40, -75, 0)),
    Part.LineSegment(Vector(40, -75, 0), Vector(40, -17.5, 0)),
    Part.LineSegment(Vector(40, -17.5, 0), Vector(20, -17.5, 0)),
], False)
sketch16.addConstraint([
    Sketcher.Constraint("Coincident", 0, 2, 1, 1),
    Sketcher.Constraint("Coincident", 1, 2, 2, 1),
    Sketcher.Constraint("Coincident", 2, 2, 3, 1),
    Sketcher.Constraint("Coincident", 3, 2, 0, 1),
    Sketcher.Constraint("Vertical", 0),
    Sketcher.Constraint("Horizontal", 1),
    Sketcher.Constraint("Vertical", 2),
    Sketcher.Constraint("Horizontal", 3),
    Sketcher.Constraint("DistanceX", 1, 1, 1, 2, 20.0),
    Sketcher.Constraint("DistanceY", 0, 2, 0, 1, 57.5),
    Sketcher.Constraint("DistanceX", -1, 1, 0, 2, 20.0),
    Sketcher.Constraint("DistanceY", 0, 2, -1, 1, 75.0),
])
sketch16.setExpression("Constraints[8]", "Params.sketch16_width")
sketch16.setExpression("Constraints[9]", "Params.sketch16_height")
revolution16 = body16.newObject("PartDesign::Revolution", "Revolution015")
revolution16.Profile = sketch16
revolution16.ReferenceAxis = (sketch16, ["H_Axis"])
revolution16.setExpression("Angle", "Params.revolution16_angle")
body17 = doc.addObject("PartDesign::Body", "Body016")

sketch17 = body17.newObject("Sketcher::SketchObject", "Sketch016")
sketch17.AttachmentSupport = (doc.getObject("XY_Plane016"), [""])
sketch17.MapMode = "FlatFace"
sketch17.addGeometry([
    Part.LineSegment(Vector(580, -17.5, 0), Vector(580, -75, 0)),
    Part.LineSegment(Vector(580, -75, 0), Vector(600, -75, 0)),
    Part.LineSegment(Vector(600, -75, 0), Vector(600, -17.5, 0)),
    Part.LineSegment(Vector(600, -17.5, 0), Vector(580, -17.5, 0)),
], False)
sketch17.addConstraint([
    Sketcher.Constraint("Coincident", 0, 2, 1, 1),
    Sketcher.Constraint("Coincident", 1, 2, 2, 1),
    Sketcher.Constraint("Coincident", 2, 2, 3, 1),
    Sketcher.Constraint("Coincident", 3, 2, 0, 1),
    Sketcher.Constraint("Vertical", 0),
    Sketcher.Constraint("Horizontal", 1),
    Sketcher.Constraint("Vertical", 2),
    Sketcher.Constraint("Horizontal", 3),
    Sketcher.Constraint("DistanceX", 1, 1, 1, 2, 20.0),
    Sketcher.Constraint("DistanceY", 0, 2, 0, 1, 57.5),
    Sketcher.Constraint("DistanceX", -1, 1, 0, 2, 580.0),
    Sketcher.Constraint("DistanceY", 0, 2, -1, 1, 75.0),
])
sketch17.setExpression("Constraints[8]", "Params.sketch17_width")
sketch17.setExpression("Constraints[9]", "Params.sketch17_height")
revolution17 = body17.newObject("PartDesign::Revolution", "Revolution016")
revolution17.Profile = sketch17
revolution17.ReferenceAxis = (sketch17, ["H_Axis"])
revolution17.setExpression("Angle", "Params.revolution17_angle")
body18 = doc.addObject("PartDesign::Body", "Body017")

sketch18 = body18.newObject("Sketcher::SketchObject", "Sketch017")
sketch18.AttachmentSupport = (doc.getObject("XY_Plane017"), [""])
sketch18.MapMode = "FlatFace"
sketch18.addGeometry([
    Part.LineSegment(Vector(540, -17.5, 0), Vector(540, -75, 0)),
    Part.LineSegment(Vector(540, -75, 0), Vector(560, -75, 0)),
    Part.LineSegment(Vector(560, -75, 0), Vector(560, -17.5, 0)),
    Part.LineSegment(Vector(560, -17.5, 0), Vector(540, -17.5, 0)),
], False)
sketch18.addConstraint([
    Sketcher.Constraint("Coincident", 0, 2, 1, 1),
    Sketcher.Constraint("Coincident", 1, 2, 2, 1),
    Sketcher.Constraint("Coincident", 2, 2, 3, 1),
    Sketcher.Constraint("Coincident", 3, 2, 0, 1),
    Sketcher.Constraint("Vertical", 0),
    Sketcher.Constraint("Horizontal", 1),
    Sketcher.Constraint("Vertical", 2),
    Sketcher.Constraint("Horizontal", 3),
    Sketcher.Constraint("DistanceX", 1, 1, 1, 2, 20.0),
    Sketcher.Constraint("DistanceY", 0, 2, 0, 1, 57.5),
    Sketcher.Constraint("DistanceX", -1, 1, 0, 2, 540.0),
    Sketcher.Constraint("DistanceY", 0, 2, -1, 1, 75.0),
])
sketch18.setExpression("Constraints[8]", "Params.sketch18_width")
sketch18.setExpression("Constraints[9]", "Params.sketch18_height")
revolution18 = body18.newObject("PartDesign::Revolution", "Revolution017")
revolution18.Profile = sketch18
revolution18.ReferenceAxis = (sketch18, ["H_Axis"])
revolution18.setExpression("Angle", "Params.revolution18_angle")
body19 = doc.addObject("PartDesign::Body", "Body018")

sketch19 = body19.newObject("Sketcher::SketchObject", "Sketch018")
sketch19.AttachmentSupport = (doc.getObject("XY_Plane018"), [""])
sketch19.MapMode = "FlatFace"
sketch19.addGeometry([
    Part.LineSegment(Vector(740, 0, 0), Vector(740, -75, 0)),
    Part.LineSegment(Vector(740, -75, 0), Vector(840, -75, 0)),
    Part.LineSegment(Vector(840, -75, 0), Vector(840, 0, 0)),
    Part.LineSegment(Vector(840, 0, 0), Vector(740, 0, 0)),
], False)
sketch19.addConstraint([
    Sketcher.Constraint("Coincident", 0, 2, 1, 1),
    Sketcher.Constraint("Coincident", 1, 2, 2, 1),
    Sketcher.Constraint("Coincident", 2, 2, 3, 1),
    Sketcher.Constraint("Coincident", 3, 2, 0, 1),
    Sketcher.Constraint("Vertical", 0),
    Sketcher.Constraint("Horizontal", 1),
    Sketcher.Constraint("Vertical", 2),
    Sketcher.Constraint("Horizontal", 3),
    Sketcher.Constraint("PointOnObject", 2, 2, -1),
    Sketcher.Constraint("DistanceX", 1, 1, 1, 2, 100.0),
    Sketcher.Constraint("DistanceY", 0, 2, 0, 1, 75.0),
    Sketcher.Constraint("DistanceX", -1, 1, 0, 2, 740.0),
])
sketch19.setExpression("Constraints[9]", "Params.sketch19_width")
sketch19.setExpression("Constraints[10]", "Params.sketch19_height")
revolution19 = body19.newObject("PartDesign::Revolution", "Revolution018")
revolution19.Profile = sketch19
revolution19.ReferenceAxis = (sketch19, ["H_Axis"])
revolution19.setExpression("Angle", "Params.revolution19_angle")
body20 = doc.addObject("PartDesign::Body", "Body019")

sketch20 = body20.newObject("Sketcher::SketchObject", "Sketch019")
sketch20.AttachmentSupport = (doc.getObject("XY_Plane019"), [""])
sketch20.MapMode = "FlatFace"
sketch20.addGeometry([
    Part.LineSegment(Vector(620, -17.5, 0), Vector(620, -75, 0)),
    Part.LineSegment(Vector(620, -75, 0), Vector(640, -75, 0)),
    Part.LineSegment(Vector(640, -75, 0), Vector(640, -17.5, 0)),
    Part.LineSegment(Vector(640, -17.5, 0), Vector(620, -17.5, 0)),
], False)
sketch20.addConstraint([
    Sketcher.Constraint("Coincident", 0, 2, 1, 1),
    Sketcher.Constraint("Coincident", 1, 2, 2, 1),
    Sketcher.Constraint("Coincident", 2, 2, 3, 1),
    Sketcher.Constraint("Coincident", 3, 2, 0, 1),
    Sketcher.Constraint("Vertical", 0),
    Sketcher.Constraint("Horizontal", 1),
    Sketcher.Constraint("Vertical", 2),
    Sketcher.Constraint("Horizontal", 3),
    Sketcher.Constraint("DistanceX", 1, 1, 1, 2, 20.0),
    Sketcher.Constraint("DistanceY", 0, 2, 0, 1, 57.5),
    Sketcher.Constraint("DistanceX", -1, 1, 0, 2, 620.0),
    Sketcher.Constraint("DistanceY", 0, 2, -1, 1, 75.0),
])
sketch20.setExpression("Constraints[8]", "Params.sketch20_width")
sketch20.setExpression("Constraints[9]", "Params.sketch20_height")
revolution20 = body20.newObject("PartDesign::Revolution", "Revolution019")
revolution20.Profile = sketch20
revolution20.ReferenceAxis = (sketch20, ["H_Axis"])
revolution20.setExpression("Angle", "Params.revolution20_angle")
body21 = doc.addObject("PartDesign::Body", "Body020")
body21.AllowCompound = True

sketch21 = body21.newObject("Sketcher::SketchObject", "Sketch020")
sketch21.AttachmentSupport = (doc.getObject("YZ_Plane020"), [""])
sketch21.MapMode = "FlatFace"
sketch21.addGeometry([
    Part.Circle(Vector(0, 50, 0), Vector(0, 0, 1), 5),
    Part.Circle(Vector(-43.30127, -25, 0), Vector(0, 0, 1), 5),
    Part.Circle(Vector(43.30127, -25, 0), Vector(0, 0, 1), 5),
], False)
sketch21.addConstraint([
    Sketcher.Constraint("Equal", 0, 1),
    Sketcher.Constraint("Equal", 1, 2),
    Sketcher.Constraint("Symmetric", 1, 3, 2, 3, -2),
    Sketcher.Constraint("PointOnObject", 0, 3, -2),
    Sketcher.Constraint("Diameter", 0, 10.0),
    Sketcher.Constraint("DistanceY", -1, 1, 0, 3, 50.0),
    Sketcher.Constraint("DistanceY", 1, 3, -1, 1, 25.0),
    Sketcher.Constraint("DistanceX", 1, 3, -1, 1, 43.30127),
])
sketch21.setExpression("Constraints[4]", "Params.sketch21_diameter")
pad1 = body21.newObject("PartDesign::Pad", "Pad")
pad1.Profile = sketch21
pad1.setExpression("Length", "Params.pad1_length")
doc.recompute()

body22 = doc.addObject("PartDesign::Body", "Body021")
body22.BaseFeature = body21
boolean = body2.newObject("PartDesign::Boolean", "Boolean")
boolean.Type = "Cut"
boolean.addObjects([body22])
doc.recompute()

body23 = doc.addObject("PartDesign::Body", "Body022")
body23.BaseFeature = body21
boolean2 = body3.newObject("PartDesign::Boolean", "Boolean001")
boolean2.Type = "Cut"
boolean2.addObjects([body23])
doc.recompute()

body24 = doc.addObject("PartDesign::Body", "Body023")
body24.BaseFeature = body21
boolean3 = body4.newObject("PartDesign::Boolean", "Boolean002")
boolean3.Type = "Cut"
boolean3.addObjects([body24])
doc.recompute()

body25 = doc.addObject("PartDesign::Body", "Body024")
body25.BaseFeature = body21
boolean4 = body5.newObject("PartDesign::Boolean", "Boolean003")
boolean4.Type = "Cut"
boolean4.addObjects([body25])
doc.recompute()

body26 = doc.addObject("PartDesign::Body", "Body025")
body26.BaseFeature = body21
boolean5 = body6.newObject("PartDesign::Boolean", "Boolean004")
boolean5.Type = "Cut"
boolean5.addObjects([body26])
doc.recompute()

body27 = doc.addObject("PartDesign::Body", "Body026")
body27.BaseFeature = body21
boolean6 = body7.newObject("PartDesign::Boolean", "Boolean005")
boolean6.Type = "Cut"
boolean6.addObjects([body27])
doc.recompute()

body28 = doc.addObject("PartDesign::Body", "Body027")
body28.BaseFeature = body21
boolean7 = body8.newObject("PartDesign::Boolean", "Boolean006")
boolean7.Type = "Cut"
boolean7.addObjects([body28])
doc.recompute()

body29 = doc.addObject("PartDesign::Body", "Body028")
body29.BaseFeature = body21
boolean8 = body9.newObject("PartDesign::Boolean", "Boolean007")
boolean8.Type = "Cut"
boolean8.addObjects([body29])
doc.recompute()

body30 = doc.addObject("PartDesign::Body", "Body029")
body30.BaseFeature = body21
boolean9 = body10.newObject("PartDesign::Boolean", "Boolean008")
boolean9.Type = "Cut"
boolean9.addObjects([body30])
doc.recompute()

body31 = doc.addObject("PartDesign::Body", "Body030")
body31.BaseFeature = body21
boolean10 = body11.newObject("PartDesign::Boolean", "Boolean009")
boolean10.Type = "Cut"
boolean10.addObjects([body31])
doc.recompute()

body32 = doc.addObject("PartDesign::Body", "Body031")
body32.BaseFeature = body21
boolean11 = body12.newObject("PartDesign::Boolean", "Boolean010")
boolean11.Type = "Cut"
boolean11.addObjects([body32])
doc.recompute()

body33 = doc.addObject("PartDesign::Body", "Body032")
body33.BaseFeature = body21
boolean12 = body13.newObject("PartDesign::Boolean", "Boolean011")
boolean12.Type = "Cut"
boolean12.addObjects([body33])
doc.recompute()

body34 = doc.addObject("PartDesign::Body", "Body033")
body34.BaseFeature = body21
boolean13 = body14.newObject("PartDesign::Boolean", "Boolean012")
boolean13.Type = "Cut"
boolean13.addObjects([body34])
doc.recompute()

body35 = doc.addObject("PartDesign::Body", "Body034")
body35.BaseFeature = body21
boolean14 = body15.newObject("PartDesign::Boolean", "Boolean013")
boolean14.Type = "Cut"
boolean14.addObjects([body35])
doc.recompute()

body36 = doc.addObject("PartDesign::Body", "Body035")
body36.BaseFeature = body21
boolean15 = body16.newObject("PartDesign::Boolean", "Boolean014")
boolean15.Type = "Cut"
boolean15.addObjects([body36])
doc.recompute()

body37 = doc.addObject("PartDesign::Body", "Body036")
body37.BaseFeature = body21
boolean16 = body17.newObject("PartDesign::Boolean", "Boolean015")
boolean16.Type = "Cut"
boolean16.addObjects([body37])
doc.recompute()

body38 = doc.addObject("PartDesign::Body", "Body037")
body38.BaseFeature = body21
boolean17 = body18.newObject("PartDesign::Boolean", "Boolean016")
boolean17.Type = "Cut"
boolean17.addObjects([body38])
doc.recompute()

body39 = doc.addObject("PartDesign::Body", "Body038")
body39.BaseFeature = body21
boolean18 = body19.newObject("PartDesign::Boolean", "Boolean017")
boolean18.Type = "Cut"
boolean18.addObjects([body39])
doc.recompute()

boolean19 = body20.newObject("PartDesign::Boolean", "Boolean018")
boolean19.Type = "Cut"
boolean19.addObjects([body21])
body40 = doc.addObject("PartDesign::Body", "Body039")

sketch22 = body40.newObject("Sketcher::SketchObject", "Sketch021")
sketch22.AttachmentSupport = (doc.getObject("YZ_Plane039"), [""])
sketch22.MapMode = "FlatFace"
sketch22.addGeometry(Part.Circle(Vector(0, 50, 0), Vector(0, 0, 1), 5), False)
sketch22.addConstraint([
    Sketcher.Constraint("PointOnObject", 0, 3, -2),
    Sketcher.Constraint("Diameter", 0, 10.0),
    Sketcher.Constraint("DistanceY", -1, 1, 0, 3, 50.0),
])
sketch22.setExpression("Constraints[1]", "Params.sketch22_diameter")
pad2 = body40.newObject("PartDesign::Pad", "Pad001")
pad2.Profile = sketch22
pad2.setExpression("Length", "Params.pad2_length")
body41 = doc.addObject("PartDesign::Body", "Body040")

sketch23 = body41.newObject("Sketcher::SketchObject", "Sketch022")
sketch23.AttachmentSupport = (doc.getObject("YZ_Plane040"), [""])
sketch23.MapMode = "FlatFace"
sketch23.addGeometry(Part.Circle(Vector(-43.30127, -25, 0), Vector(0, 0, 1), 5), False)
sketch23.addConstraint([
    Sketcher.Constraint("Diameter", 0, 10.0),
    Sketcher.Constraint("DistanceY", 0, 3, -1, 1, 25.0),
    Sketcher.Constraint("DistanceX", 0, 3, -1, 1, 43.30127),
])
sketch23.setExpression("Constraints[0]", "Params.sketch23_diameter")
pad3 = body41.newObject("PartDesign::Pad", "Pad002")
pad3.Profile = sketch23
pad3.setExpression("Length", "Params.pad3_length")
body42 = doc.addObject("PartDesign::Body", "Body041")

sketch24 = body42.newObject("Sketcher::SketchObject", "Sketch023")
sketch24.AttachmentSupport = (doc.getObject("YZ_Plane041"), [""])
sketch24.MapMode = "FlatFace"
sketch24.addGeometry(Part.Circle(Vector(43.30127, -25, 0), Vector(0, 0, 1), 5), False)
sketch24.addConstraint([
    Sketcher.Constraint("Diameter", 0, 10.0),
    Sketcher.Constraint("DistanceY", 0, 3, -1, 1, 25.0),
    Sketcher.Constraint("DistanceX", -1, 1, 0, 3, 43.30127),
])
sketch24.setExpression("Constraints[0]", "Params.sketch24_diameter")
pad4 = body42.newObject("PartDesign::Pad", "Pad003")
pad4.Profile = sketch24
pad4.setExpression("Length", "Params.pad4_length")
body43 = doc.addObject("PartDesign::Body", "Body042")

sketch25 = body43.newObject("Sketcher::SketchObject", "Sketch024")
sketch25.AttachmentSupport = (doc.getObject("XY_Plane042"), [""])
sketch25.MapMode = "FlatFace"
sketch25.addGeometry([
    Part.LineSegment(Vector(740, 0, 0), Vector(740, -75, 0)),
    Part.LineSegment(Vector(740, -75, 0), Vector(840, -75, 0)),
    Part.LineSegment(Vector(840, -75, 0), Vector(840, 0, 0)),
    Part.LineSegment(Vector(840, 0, 0), Vector(740, 0, 0)),
], False)
sketch25.addConstraint([
    Sketcher.Constraint("Coincident", 0, 2, 1, 1),
    Sketcher.Constraint("Coincident", 1, 2, 2, 1),
    Sketcher.Constraint("Coincident", 2, 2, 3, 1),
    Sketcher.Constraint("Coincident", 3, 2, 0, 1),
    Sketcher.Constraint("Vertical", 0),
    Sketcher.Constraint("Horizontal", 1),
    Sketcher.Constraint("Vertical", 2),
    Sketcher.Constraint("Horizontal", 3),
    Sketcher.Constraint("PointOnObject", 2, 2, -1),
    Sketcher.Constraint("DistanceX", 1, 1, 1, 2, 100.0),
    Sketcher.Constraint("DistanceY", 0, 2, 0, 1, 75.0),
    Sketcher.Constraint("DistanceX", -1, 1, 0, 2, 740.0),
])
sketch25.setExpression("Constraints[9]", "Params.sketch25_width")
sketch25.setExpression("Constraints[10]", "Params.sketch25_height")
revolution21 = body43.newObject("PartDesign::Revolution", "Revolution020")
revolution21.Profile = sketch25
revolution21.ReferenceAxis = (sketch25, ["H_Axis"])
revolution21.setExpression("Angle", "Params.revolution21_angle")

doc.recompute()
